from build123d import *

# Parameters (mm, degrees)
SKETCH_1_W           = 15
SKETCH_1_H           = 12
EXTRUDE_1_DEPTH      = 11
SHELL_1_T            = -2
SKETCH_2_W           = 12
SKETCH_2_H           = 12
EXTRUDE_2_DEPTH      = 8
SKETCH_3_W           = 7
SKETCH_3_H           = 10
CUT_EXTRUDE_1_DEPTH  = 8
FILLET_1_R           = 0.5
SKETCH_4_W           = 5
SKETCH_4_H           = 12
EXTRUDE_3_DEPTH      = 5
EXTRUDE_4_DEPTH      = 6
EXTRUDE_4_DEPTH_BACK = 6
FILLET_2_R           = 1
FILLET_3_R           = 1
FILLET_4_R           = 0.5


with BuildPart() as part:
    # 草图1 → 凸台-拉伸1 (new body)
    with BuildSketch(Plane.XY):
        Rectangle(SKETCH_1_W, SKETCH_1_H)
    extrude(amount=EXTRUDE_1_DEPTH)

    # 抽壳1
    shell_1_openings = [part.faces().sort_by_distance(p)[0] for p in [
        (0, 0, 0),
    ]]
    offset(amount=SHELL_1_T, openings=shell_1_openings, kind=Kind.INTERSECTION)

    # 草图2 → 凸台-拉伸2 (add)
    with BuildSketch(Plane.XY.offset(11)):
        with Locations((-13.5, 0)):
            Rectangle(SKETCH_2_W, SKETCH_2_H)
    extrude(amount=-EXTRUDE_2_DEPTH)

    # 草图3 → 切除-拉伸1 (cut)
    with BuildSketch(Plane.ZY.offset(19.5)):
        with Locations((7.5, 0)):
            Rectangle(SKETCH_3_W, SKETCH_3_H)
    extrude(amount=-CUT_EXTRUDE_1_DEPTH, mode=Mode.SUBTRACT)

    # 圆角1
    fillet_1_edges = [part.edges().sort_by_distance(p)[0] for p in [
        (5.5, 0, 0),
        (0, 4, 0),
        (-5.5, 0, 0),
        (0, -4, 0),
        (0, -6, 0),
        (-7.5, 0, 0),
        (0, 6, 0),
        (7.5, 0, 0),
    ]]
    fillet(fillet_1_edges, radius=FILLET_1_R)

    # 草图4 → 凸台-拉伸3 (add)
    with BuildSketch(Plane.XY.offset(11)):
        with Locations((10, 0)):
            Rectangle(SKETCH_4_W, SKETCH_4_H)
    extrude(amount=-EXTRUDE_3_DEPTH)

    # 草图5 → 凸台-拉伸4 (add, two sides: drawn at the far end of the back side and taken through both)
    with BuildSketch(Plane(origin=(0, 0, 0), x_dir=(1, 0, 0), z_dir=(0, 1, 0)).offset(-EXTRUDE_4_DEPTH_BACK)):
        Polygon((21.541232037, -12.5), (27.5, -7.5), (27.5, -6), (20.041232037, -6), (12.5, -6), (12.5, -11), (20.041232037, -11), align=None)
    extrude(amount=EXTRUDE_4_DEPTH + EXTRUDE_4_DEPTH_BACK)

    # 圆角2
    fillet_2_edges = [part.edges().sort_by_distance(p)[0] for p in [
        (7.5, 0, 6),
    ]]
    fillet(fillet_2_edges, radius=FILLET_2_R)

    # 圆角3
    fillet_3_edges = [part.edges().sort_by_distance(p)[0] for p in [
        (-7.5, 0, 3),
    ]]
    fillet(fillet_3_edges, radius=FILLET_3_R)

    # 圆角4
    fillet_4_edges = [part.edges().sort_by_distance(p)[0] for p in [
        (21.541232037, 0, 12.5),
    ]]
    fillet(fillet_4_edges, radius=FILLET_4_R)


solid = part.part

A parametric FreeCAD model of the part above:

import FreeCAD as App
import Part
import Sketcher

V = App.Vector
Q = App.Units.Quantity


def edges_at(feature, points):
    """Names of the edges that pass closest to the given points."""
    edges = feature.Shape.Edges
    near = lambda p: min(range(len(edges)), key=lambda i: edges[i].distToShape(Part.Vertex(*p))[0])
    return sorted({f"Edge{near(p) + 1}" for p in points})


def faces_at(feature, points):
    """Names of the faces that lie closest to the given points."""
    faces = feature.Shape.Faces
    near = lambda p: min(range(len(faces)), key=lambda i: faces[i].distToShape(Part.Vertex(*p))[0])
    return sorted({f"Face{near(p) + 1}" for p in points})

doc = App.newDocument("Part")
body = doc.addObject("PartDesign::Body", "Body")

# Sketch on XY plane
sketch1 = body.newObject("Sketcher::SketchObject", "Sketch")
sketch1.AttachmentSupport = (doc.getObject("XY_Plane"), [""])
sketch1.MapMode = "FlatFace"
sketch1.addGeometry([
    Part.LineSegment(V(-8, 6, 0), V(-8, -6, 0)),
    Part.LineSegment(V(-8, -6, 0), V(8, -6, 0)),
    Part.LineSegment(V(8, -6, 0), V(8, 6, 0)),
    Part.LineSegment(V(8, 6, 0), V(-8, 6, 0)),
], False)
sketch1.addConstraint([
    Sketcher.Constraint("Coincident", 0, 2, 1, 1),
    Sketcher.Constraint("Coincident", 1, 2, 2, 1),
    Sketcher.Constraint("Coincident", 2, 2, 3, 1),
    Sketcher.Constraint("Coincident", 3, 2, 0, 1),
    Sketcher.Constraint("Vertical", 0),
    Sketcher.Constraint("Horizontal", 1),
    Sketcher.Constraint("Vertical", 2),
    Sketcher.Constraint("Horizontal", 3),
    Sketcher.Constraint("Symmetric", 0, 2, 2, 2, -1, 1),
    Sketcher.Constraint("DistanceX", 1, 1, 1, 2, Q("15 mm")),
    Sketcher.Constraint("DistanceY", 0, 2, 0, 1, Q("12 mm")),
])
pad1 = body.newObject("PartDesign::Pad", "Pad")
pad1.Profile = sketch1
pad1.Length = 11
doc.recompute()

thickness = body.newObject("PartDesign::Thickness", "Thickness")
thickness.Base = (pad1, faces_at(pad1, [(0, 0, 0)]))
thickness.Value = 2
thickness.Reversed = True
thickness.Join = "Intersection"

# Sketch on XY plane
sketch2 = body.newObject("Sketcher::SketchObject", "Sketch001")
sketch2.AttachmentSupport = (doc.getObject("XY_Plane"), [""])
sketch2.MapMode = "FlatFace"
sketch2.AttachmentOffset = App.Placement(V(0, 0, 11), App.Rotation())
sketch2.addGeometry([
    Part.LineSegment(V(-20, 6, 0), V(-20, -6, 0)),
    Part.LineSegment(V(-20, -6, 0), V(-8, -6, 0)),
    Part.LineSegment(V(-8, -6, 0), V(-8, 6, 0)),
    Part.LineSegment(V(-8, 6, 0), V(-20, 6, 0)),
], False)
sketch2.addConstraint([
    Sketcher.Constraint("Coincident", 0, 2, 1, 1),
    Sketcher.Constraint("Coincident", 1, 2, 2, 1),
    Sketcher.Constraint("Coincident", 2, 2, 3, 1),
    Sketcher.Constraint("Coincident", 3, 2, 0, 1),
    Sketcher.Constraint("Vertical", 0),
    Sketcher.Constraint("Horizontal", 1),
    Sketcher.Constraint("Vertical", 2),
    Sketcher.Constraint("Horizontal", 3),
    Sketcher.Constraint("Equal", 3, 0),
    Sketcher.Constraint("DistanceX", 1, 1, 1, 2, Q("12 mm")),
    Sketcher.Constraint("DistanceY", 0, 2, -1, 1, Q("6 mm")),
    Sketcher.Constraint("DistanceX", 0, 2, -1, 1, Q("19.5 mm")),
])
pad2 = body.newObject("PartDesign::Pad", "Pad001")
pad2.Profile = sketch2
pad2.Length = 8
pad2.Reversed = True

# Sketch on YZ plane
sketch3 = body.newObject("Sketcher::SketchObject", "Sketch002")
sketch3.AttachmentSupport = (doc.getObject("YZ_Plane"), [""])
sketch3.MapMode = "FlatFace"
sketch3.AttachmentOffset = App.Placement(V(0, 0, -19.5), App.Rotation())
sketch3.addGeometry([
    Part.LineSegment(V(5, 4, 0), V(-5, 4, 0)),
    Part.LineSegment(V(-5, 4, 0), V(-5, 11, 0)),
    Part.LineSegment(V(-5, 11, 0), V(5, 11, 0)),
    Part.LineSegment(V(5, 11, 0), V(5, 4, 0)),
], False)
sketch3.addConstraint([
    Sketcher.Constraint("Coincident", 0, 2, 1, 1),
    Sketcher.Constraint("Coincident", 1, 2, 2, 1),
    Sketcher.Constraint("Coincident", 2, 2, 3, 1),
    Sketcher.Constraint("Coincident", 3, 2, 0, 1),
    Sketcher.Constraint("Horizontal", 0),
    Sketcher.Constraint("Vertical", 1),
    Sketcher.Constraint("Horizontal", 2),
    Sketcher.Constraint("Vertical", 3),
    Sketcher.Constraint("DistanceX", 0, 2, 0, 1, Q("10 mm")),
    Sketcher.Constraint("DistanceY", 1, 1, 1, 2, Q("7 mm")),
    Sketcher.Constraint("DistanceX", 0, 2, -1, 1, Q("5 mm")),
    Sketcher.Constraint("DistanceY", -1, 1, 0, 2, Q("4 mm")),
])
pocket1 = body.newObject("PartDesign::Pocket", "Pocket")
pocket1.Profile = sketch3
pocket1.Length = 8
pocket1.Reversed = True
doc.recompute()

fillet = body.newObject("PartDesign::Fillet", "Fillet")
fillet.Base = (pocket1, edges_at(pocket1, [
    (5.5, 0, 0),
    (0, 4, 0),
    (-5.5, 0, 0),
    (0, -4, 0),
    (0, -6, 0),
    (-7.5, 0, 0),
    (0, 6, 0),
    (7.5, 0, 0),
]))
fillet.Radius = 0.5

# Sketch on XY plane
sketch4 = body.newObject("Sketcher::SketchObject", "Sketch003")
sketch4.AttachmentSupport = (doc.getObject("XY_Plane"), [""])
sketch4.MapMode = "FlatFace"
sketch4.AttachmentOffset = App.Placement(V(0, 0, 11), App.Rotation())
sketch4.addGeometry([
    Part.LineSegment(V(8, 6, 0), V(8, -6, 0)),
    Part.LineSegment(V(8, -6, 0), V(12, -6, 0)),
    Part.LineSegment(V(12, -6, 0), V(12, 6, 0)),
    Part.LineSegment(V(12, 6, 0), V(8, 6, 0)),
], False)
sketch4.addConstraint([
    Sketcher.Constraint("Coincident", 0, 2, 1, 1),
    Sketcher.Constraint("Coincident", 1, 2, 2, 1),
    Sketcher.Constraint("Coincident", 2, 2, 3, 1),
    Sketcher.Constraint("Coincident", 3, 2, 0, 1),
    Sketcher.Constraint("Vertical", 0),
    Sketcher.Constraint("Horizontal", 1),
    Sketcher.Constraint("Vertical", 2),
    Sketcher.Constraint("Horizontal", 3),
    Sketcher.Constraint("DistanceX", 1, 1, 1, 2, Q("5 mm")),
    Sketcher.Constraint("DistanceY", 0, 2, 0, 1, Q("12 mm")),
    Sketcher.Constraint("DistanceY", 0, 2, -1, 1, Q("6 mm")),
    Sketcher.Constraint("DistanceX", -1, 1, 0, 2, Q("7.5 mm")),
])
pad3 = body.newObject("PartDesign::Pad", "Pad002")
pad3.Profile = sketch4
pad3.Length = 5
pad3.Reversed = True

# Sketch on XZ plane
sketch5 = body.newObject("Sketcher::SketchObject", "Sketch004")
sketch5.AttachmentSupport = (doc.getObject("XZ_Plane"), [""])
sketch5.MapMode = "FlatFace"
sketch5.addGeometry([
    Part.LineSegment(V(21.5, 12.5, 0), V(27.5, 7.5, 0)),  # 0
    Part.LineSegment(V(27.5, 7.5, 0), V(27.5, 6, 0)),  # 1
    Part.LineSegment(V(27.5, 6, 0), V(12.5, 6, 0)),  # 2
    Part.LineSegment(V(12.5, 6, 0), V(12.5, 11, 0)),  # 3
    Part.LineSegment(V(12.5, 11, 0), V(20, 11, 0)),  # 4
    Part.LineSegment(V(20, 11, 0), V(21.5, 12.5, 0)),  # 5
], False)
sketch5.addConstraint([
    Sketcher.Constraint("Coincident", 0, 2, 1, 1),
    Sketcher.Constraint("Coincident", 1, 2, 2, 1),
    Sketcher.Constraint("Coincident", 2, 2, 3, 1),
    Sketcher.Constraint("Coincident", 3, 2, 4, 1),
    Sketcher.Constraint("Coincident", 4, 2, 5, 1),
    Sketcher.Constraint("Coincident", 5, 2, 0, 1),
    Sketcher.Constraint("Vertical", 1),
    Sketcher.Constraint("Horizontal", 2),
    Sketcher.Constraint("Vertical", 3),
    Sketcher.Constraint("Horizontal", 4),
    Sketcher.Constraint("DistanceX", 2, 2, 2, 1, Q("15 mm")),
    Sketcher.Constraint("DistanceY", 3, 1, 3, 2, Q("5 mm")),
    Sketcher.Constraint("Angle", 0, Q("-40 deg")),
    Sketcher.Constraint("Angle", 5, Q("45 deg")),
    Sketcher.Constraint("DistanceY", 1, 2, 1, 1, Q("1.5 mm")),
    Sketcher.Constraint("DistanceY", -1, 1, 1, 2, Q("6 mm")),
    Sketcher.Constraint("DistanceY", 0, 2, 5, 2, Q("5 mm")),
    Sketcher.Constraint("DistanceX", -1, 1, 0, 2, Q("27.5 mm")),
])
pad4 = body.newObject("PartDesign::Pad", "Pad003")
pad4.Profile = sketch5
pad4.Type = "TwoLengths"
pad4.Length = 6
pad4.Length2 = 6
pad4.Reversed = True
doc.recompute()

fillet2 = body.newObject("PartDesign::Fillet", "Fillet001")
fillet2.Base = (pad4, edges_at(pad4, [(7.5, 0, 6)]))
fillet2.Radius = 1
doc.recompute()

fillet3 = body.newObject("PartDesign::Fillet", "Fillet002")
fillet3.Base = (fillet2, edges_at(fillet2, [(-7.5, 0, 3)]))
fillet3.Radius = 1
doc.recompute()

fillet4 = body.newObject("PartDesign::Fillet", "Fillet003")
fillet4.Base = (fillet3, edges_at(fillet3, [(21.541, 0, 12.5)]))
fillet4.Radius = 0.5

doc.recompute()
